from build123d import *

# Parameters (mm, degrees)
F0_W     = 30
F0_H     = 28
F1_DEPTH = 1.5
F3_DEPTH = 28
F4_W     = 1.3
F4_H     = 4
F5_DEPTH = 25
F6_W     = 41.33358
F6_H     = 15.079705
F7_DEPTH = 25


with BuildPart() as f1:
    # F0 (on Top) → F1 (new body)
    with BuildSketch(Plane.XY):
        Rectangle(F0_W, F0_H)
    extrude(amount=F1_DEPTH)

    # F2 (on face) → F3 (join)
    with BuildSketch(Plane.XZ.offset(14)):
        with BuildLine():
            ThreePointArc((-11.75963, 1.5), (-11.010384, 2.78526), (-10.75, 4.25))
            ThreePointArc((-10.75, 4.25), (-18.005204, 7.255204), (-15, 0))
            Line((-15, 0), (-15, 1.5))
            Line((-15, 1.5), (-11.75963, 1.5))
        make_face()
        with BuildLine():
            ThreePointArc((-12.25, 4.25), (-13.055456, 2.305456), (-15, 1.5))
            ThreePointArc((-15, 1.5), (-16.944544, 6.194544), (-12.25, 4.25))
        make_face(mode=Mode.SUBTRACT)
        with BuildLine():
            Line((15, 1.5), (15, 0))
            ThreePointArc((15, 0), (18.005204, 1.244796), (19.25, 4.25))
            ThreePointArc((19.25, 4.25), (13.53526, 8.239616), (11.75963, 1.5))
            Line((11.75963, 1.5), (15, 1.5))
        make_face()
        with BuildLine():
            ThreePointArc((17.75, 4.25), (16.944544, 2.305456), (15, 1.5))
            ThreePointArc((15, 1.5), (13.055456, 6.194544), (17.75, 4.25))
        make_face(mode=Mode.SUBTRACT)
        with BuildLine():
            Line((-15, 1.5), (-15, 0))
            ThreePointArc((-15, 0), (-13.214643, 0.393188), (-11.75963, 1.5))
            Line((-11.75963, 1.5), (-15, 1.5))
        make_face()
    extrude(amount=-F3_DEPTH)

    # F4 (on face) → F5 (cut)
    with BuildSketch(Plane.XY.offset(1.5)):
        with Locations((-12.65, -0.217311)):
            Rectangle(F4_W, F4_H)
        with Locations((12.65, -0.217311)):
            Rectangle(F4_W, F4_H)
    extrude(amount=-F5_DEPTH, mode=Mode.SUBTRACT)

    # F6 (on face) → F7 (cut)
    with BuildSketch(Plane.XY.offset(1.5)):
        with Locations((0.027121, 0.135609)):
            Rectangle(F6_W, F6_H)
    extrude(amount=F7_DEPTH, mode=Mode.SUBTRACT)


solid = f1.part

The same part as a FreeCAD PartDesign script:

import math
import FreeCAD as App
import Part
import Sketcher
from FreeCAD import Vector


def add_polygon(sketch, points):
    """Adds a closed chain of lines whose ends are joined by coincident constraints."""
    first, n = sketch.GeometryCount, len(points)
    for a, b in zip(points, points[1:] + points[:1]):
        sketch.addGeometry(Part.LineSegment(App.Vector(*a, 0), App.Vector(*b, 0)), False)
    for i in range(n):
        sketch.addConstraint(Sketcher.Constraint("Coincident", first + i, 2, first + (i + 1) % n, 1))

doc = App.newDocument("Part")
params = doc.addObject("Spreadsheet::Sheet", "Params")
for row, (alias, value) in enumerate([
    ("sketch1_width", "30 mm"),
    ("sketch1_height", "28 mm"),
    ("pad1_length", "1.5 mm"),
    ("sketch2_radius", "4.25 mm"),
    ("sketch2_radius2", "2.749999 mm"),
    ("pad2_length", "28 mm"),
    ("sketch3_height", "4 mm"),
    ("sketch3_width", "1.3 mm"),
    ("pocket1_length", "25 mm"),
    ("pocket2_length", "25 mm"),
], start=1):
    params.set(f"A{row}", alias)
    params.set(f"B{row}", "=" + value)
    params.setAlias(f"B{row}", alias)

body = doc.addObject("PartDesign::Body", "Body")

sketch1 = body.newObject("Sketcher::SketchObject", "Sketch")
sketch1.AttachmentSupport = (doc.getObject("XY_Plane"), [""])
sketch1.MapMode = "FlatFace"
add_polygon(sketch1, [(-15, 14), (-15, -14), (15, -14), (15, 14)])
sketch1.addConstraint([
    Sketcher.Constraint("Vertical", 0),
    Sketcher.Constraint("Horizontal", 1),
    Sketcher.Constraint("Vertical", 2),
    Sketcher.Constraint("Horizontal", 3),
    Sketcher.Constraint("Symmetric", 0, 2, 2, 2, -1, 1),
    Sketcher.Constraint("DistanceX", 1, 1, 1, 2, 30.0),
    Sketcher.Constraint("DistanceY", 0, 2, 0, 1, 28.0),
])
sketch1.setExpression("Constraints[9]", "Params.sketch1_width")
sketch1.setExpression("Constraints[10]", "Params.sketch1_height")
pad1 = body.newObject("PartDesign::Pad", "Pad")
pad1.Profile = sketch1
pad1.setExpression("Length", "Params.pad1_length")

sketch2 = body.newObject("Sketcher::SketchObject", "Sketch001")
sketch2.AttachmentSupport = (doc.getObject("XZ_Plane"), [""])
sketch2.MapMode = "FlatFace"
sketch2.AttachmentOffset = App.Placement(Vector(0, 0, 14), App.Rotation())
sketch2.addGeometry([
    Part.ArcOfCircle(Part.Circle(Vector(-15, 4.3, 0), Vector(0, 0, 1), 4.3), math.radians(0), math.radians(270)),
    Part.ArcOfCircle(Part.Circle(Vector(-15, 4.3, 0), Vector(0, 0, 1), 4.3), math.radians(-90), math.radians(-40)),
    Part.ArcOfCircle(Part.Circle(Vector(-15, 4.3, 0), Vector(0, 0, 1), 4.2), math.radians(-40), math.radians(0)),
    Part.ArcOfCircle(Part.Circle(Vector(-15, 4.2, 0), Vector(0, 0, 1), 2.7), math.radians(-90), math.radians(0)),
    Part.ArcOfCircle(Part.Circle(Vector(-15, 4.3, 0), Vector(0, 0, 1), 2.8), math.radians(0), math.radians(270)),
    Part.ArcOfCircle(Part.Circle(Vector(15, 4.2, 0), Vector(0, 0, 1), 4.2), math.radians(-90), math.radians(0)),
    Part.ArcOfCircle(Part.Circle(Vector(15, 4.3, 0), Vector(0, 0, 1), 4.2), math.radians(0), math.radians(220)),
    Part.LineSegment(Vector(11.8, 1.5, 0), Vector(15, 1.5, 0)),
    Part.LineSegment(Vector(15, 1.5, 0), Vector(15, 0, 0)),
    Part.ArcOfCircle(Part.Circle(Vector(15, 4.2, 0), Vector(0, 0, 1), 2.7), math.radians(-90), math.radians(0)),
    Part.ArcOfCircle(Part.Circle(Vector(15, 4.3, 0), Vector(0, 0, 1), 2.8), math.radians(0), math.radians(270)),
], False)
sketch2.addConstraint([
    Sketcher.Constraint("Tangent", 0, 2, 1, 1),
    Sketcher.Constraint("Tangent", 1, 2, 2, 1),
    Sketcher.Constraint("Tangent", 2, 2, 0, 1),
    Sketcher.Constraint("Tangent", 3, 1, 4, 2),
    Sketcher.Constraint("Coincident", 4, 1, 3, 2),
    Sketcher.Constraint("Tangent", 5, 2, 6, 1),
    Sketcher.Constraint("Coincident", 6, 2, 7, 1),
    Sketcher.Constraint("Coincident", 7, 2, 8, 1),
    Sketcher.Constraint("Coincident", 8, 2, 5, 1),
    Sketcher.Constraint("Tangent", 9, 1, 10, 2),
    Sketcher.Constraint("Coincident", 10, 1, 9, 2),
    Sketcher.Constraint("Horizontal", 7),
    Sketcher.Constraint("Vertical", 8),
    Sketcher.Constraint("Coincident", 3, 3, 0, 3),
    Sketcher.Constraint("Coincident", 9, 3, 5, 3),
    Sketcher.Constraint("Coincident", 9, 1, 7, 2),
    Sketcher.Constraint("Equal", 2, 5),
    Sketcher.Constraint("Equal", 5, 6),
    Sketcher.Constraint("Equal", 4, 9),
    Sketcher.Constraint("Symmetric", 0, 2, 8, 2, -1, 1),
    Sketcher.Constraint("Symmetric", 0, 3, 5, 3, -2),
    Sketcher.Constraint("Horizontal", 10, 3, 2, 2),
    Sketcher.Constraint("Horizontal", 1, 2, 3, 1),
    Sketcher.Constraint("Horizontal", 2, 2, 4, 1),
    Sketcher.Constraint("Horizontal", 4, 1, 5, 2),
    Sketcher.Constraint("Horizontal", 5, 2, 10, 1),
    Sketcher.Constraint("Vertical", 4, 3, 0, 2),
    Sketcher.Constraint("Vertical", 0, 2, 3, 1),
    Sketcher.Constraint("Radius", 0, 4.25),
    Sketcher.Constraint("Radius", 3, 2.749999),
    Sketcher.Constraint("DistanceX", 0, 3, -1, 1, 15.0),
])
sketch2.setExpression("Constraints[28]", "Params.sketch2_radius")
sketch2.setExpression("Constraints[29]", "Params.sketch2_radius2")
pad2 = body.newObject("PartDesign::Pad", "Pad001")
pad2.Profile = sketch2
pad2.setExpression("Length", "Params.pad2_length")
pad2.Reversed = True

sketch3 = body.newObject("Sketcher::SketchObject", "Sketch002")
sketch3.AttachmentSupport = (doc.getObject("XY_Plane"), [""])
sketch3.MapMode = "FlatFace"
sketch3.AttachmentOffset = App.Placement(Vector(0, 0, 1.5), App.Rotation())
add_polygon(sketch3, [(-13.3, 1.8), (-13.3, -2.2), (-12, -2.2), (-12, 1.8)])
add_polygon(sketch3, [(12, 1.8), (12, -2.2), (13.3, -2.2), (13.3, 1.8)])
sketch3.addConstraint([
    Sketcher.Constraint("Vertical", 0),
    Sketcher.Constraint("Horizontal", 1),
    Sketcher.Constraint("Vertical", 2),
    Sketcher.Constraint("Horizontal", 3),
    Sketcher.Constraint("Vertical", 4),
    Sketcher.Constraint("Horizontal", 5),
    Sketcher.Constraint("Vertical", 6),
    Sketcher.Constraint("Horizontal", 7),
    Sketcher.Constraint("Symmetric", 1, 2, 4, 2, -2),
    Sketcher.Constraint("Symmetric", 3, 2, 6, 2, -2),
    Sketcher.Constraint("DistanceY", 0, 2, 0, 1, 4.0),
    Sketcher.Constraint("DistanceX", 1, 1, 1, 2, 1.3),
    Sketcher.Constraint("DistanceX", 1, 2, -1, 1, 12.0),
    Sketcher.Constraint("DistanceY", 0, 2, -1, 1, 2.217311),
])
sketch3.setExpression("Constraints[18]", "Params.sketch3_height")
sketch3.setExpression("Constraints[19]", "Params.sketch3_width")
pocket1 = body.newObject("PartDesign::Pocket", "Pocket")
pocket1.Profile = sketch3
pocket1.setExpression("Length", "Params.pocket1_length")

sketch4 = body.newObject("Sketcher::SketchObject", "Sketch003")
sketch4.AttachmentSupport = (doc.getObject("XY_Plane"), [""])
sketch4.MapMode = "FlatFace"
sketch4.AttachmentOffset = App.Placement(Vector(0, 0, 1.5), App.Rotation())
add_polygon(sketch4, [(-21, 8), (-21, -7), (21, -7), (21, 8)])
sketch4.addConstraint([
    Sketcher.Constraint("Vertical", 0),
    Sketcher.Constraint("Horizontal", 1),
    Sketcher.Constraint("Vertical", 2),
    Sketcher.Constraint("Horizontal", 3),
    Sketcher.Constraint("DistanceX", 1, 1, 1, 2, 41.33358),
    Sketcher.Constraint("DistanceY", 0, 2, 0, 1, 15.079705),
    Sketcher.Constraint("DistanceX", 0, 2, -1, 1, 20.639669),
    Sketcher.Constraint("DistanceY", -1, 1, 2, 2, 7.675461),
])
pocket2 = body.newObject("PartDesign::Pocket", "Pocket001")
pocket2.Profile = sketch4
pocket2.setExpression("Length", "Params.pocket2_length")
pocket2.Reversed = True

doc.recompute()
